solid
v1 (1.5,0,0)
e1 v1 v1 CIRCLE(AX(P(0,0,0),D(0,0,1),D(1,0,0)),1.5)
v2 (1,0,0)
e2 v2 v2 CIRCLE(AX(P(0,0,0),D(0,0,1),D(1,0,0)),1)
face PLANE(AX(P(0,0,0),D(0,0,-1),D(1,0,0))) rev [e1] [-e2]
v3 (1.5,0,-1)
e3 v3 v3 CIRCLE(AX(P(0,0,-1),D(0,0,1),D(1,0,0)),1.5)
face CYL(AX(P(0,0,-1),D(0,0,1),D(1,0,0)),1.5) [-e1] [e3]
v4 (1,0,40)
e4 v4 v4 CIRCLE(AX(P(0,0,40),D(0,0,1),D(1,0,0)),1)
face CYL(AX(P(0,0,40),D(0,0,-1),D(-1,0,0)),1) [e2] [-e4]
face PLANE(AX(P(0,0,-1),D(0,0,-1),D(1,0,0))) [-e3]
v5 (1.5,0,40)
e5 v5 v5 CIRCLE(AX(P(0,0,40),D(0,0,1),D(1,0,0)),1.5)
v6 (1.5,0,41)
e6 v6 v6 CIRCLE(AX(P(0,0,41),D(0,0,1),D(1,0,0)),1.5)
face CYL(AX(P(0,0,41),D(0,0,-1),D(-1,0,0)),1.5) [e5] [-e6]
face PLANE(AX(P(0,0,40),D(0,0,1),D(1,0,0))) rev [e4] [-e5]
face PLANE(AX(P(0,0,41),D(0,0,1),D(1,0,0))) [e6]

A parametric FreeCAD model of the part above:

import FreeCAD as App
import Part
import Sketcher

doc = App.newDocument("Part")
params = doc.addObject("Spreadsheet::Sheet", "Params")
for row, (alias, value) in enumerate([
    ("sketch1_diameter", "2 mm"),
    ("pad1_length", "40 mm"),
    ("sketch2_diameter", "3 mm"),
    ("pad2_length", "1 mm"),
], start=1):
    params.set(f"A{row}", alias)
    params.set(f"B{row}", "=" + value)
    params.setAlias(f"B{row}", alias)

body = doc.addObject("PartDesign::Body", "Body")

# Sketch on XY plane
sketch1 = body.newObject("Sketcher::SketchObject", "Sketch")
sketch1.AttachmentSupport = (doc.getObject("XY_Plane"), [""])
sketch1.MapMode = "FlatFace"
sketch1.addGeometry(Part.Circle(App.Vector(0, 0, 0), App.Vector(0, 0, 1), 1), False)
sketch1.addConstraint(Sketcher.Constraint("Coincident", 0, 3, -1, 1))
sketch1.addConstraint(Sketcher.Constraint("Diameter", 0, 2.0))
sketch1.setExpression("Constraints[1]", "Params.sketch1_diameter")
pad1 = body.newObject("PartDesign::Pad", "Pad")
pad1.Profile = sketch1
pad1.setExpression("Length", "Params.pad1_length")

# Sketch on XY plane
sketch2 = body.newObject("Sketcher::SketchObject", "Sketch001")
sketch2.AttachmentSupport = (doc.getObject("XY_Plane"), [""])
sketch2.MapMode = "FlatFace"
sketch2.AttachmentOffset = App.Placement(App.Vector(0, 0, 40), App.Rotation())
sketch2.addGeometry(Part.Circle(App.Vector(0, 0, 0), App.Vector(0, 0, 1), 1.5), False)
sketch2.addConstraint(Sketcher.Constraint("Coincident", 0, 3, -1, 1))
sketch2.addConstraint(Sketcher.Constraint("Diameter", 0, 3.0))
sketch2.setExpression("Constraints[1]", "Params.sketch2_diameter")
pad2 = body.newObject("PartDesign::Pad", "Pad001")
pad2.Profile = sketch2
pad2.setExpression("Length", "Params.pad2_length")
doc.recompute()

datumplane = body.newObject("PartDesign::Plane", "DatumPlane")
datumplane.AttachmentSupport = (doc.getObject("XY_Plane"), [""])
datumplane.MapMode = "FlatFace"
datumplane.AttachmentOffset = App.Placement(App.Vector(0, 0, 20), App.Rotation())
mirrored = body.newObject("PartDesign::Mirrored", "Mirrored")
mirrored.Originals = [pad2]
mirrored.MirrorPlane = (datumplane, [""])
body.Tip = mirrored

doc.recompute()
